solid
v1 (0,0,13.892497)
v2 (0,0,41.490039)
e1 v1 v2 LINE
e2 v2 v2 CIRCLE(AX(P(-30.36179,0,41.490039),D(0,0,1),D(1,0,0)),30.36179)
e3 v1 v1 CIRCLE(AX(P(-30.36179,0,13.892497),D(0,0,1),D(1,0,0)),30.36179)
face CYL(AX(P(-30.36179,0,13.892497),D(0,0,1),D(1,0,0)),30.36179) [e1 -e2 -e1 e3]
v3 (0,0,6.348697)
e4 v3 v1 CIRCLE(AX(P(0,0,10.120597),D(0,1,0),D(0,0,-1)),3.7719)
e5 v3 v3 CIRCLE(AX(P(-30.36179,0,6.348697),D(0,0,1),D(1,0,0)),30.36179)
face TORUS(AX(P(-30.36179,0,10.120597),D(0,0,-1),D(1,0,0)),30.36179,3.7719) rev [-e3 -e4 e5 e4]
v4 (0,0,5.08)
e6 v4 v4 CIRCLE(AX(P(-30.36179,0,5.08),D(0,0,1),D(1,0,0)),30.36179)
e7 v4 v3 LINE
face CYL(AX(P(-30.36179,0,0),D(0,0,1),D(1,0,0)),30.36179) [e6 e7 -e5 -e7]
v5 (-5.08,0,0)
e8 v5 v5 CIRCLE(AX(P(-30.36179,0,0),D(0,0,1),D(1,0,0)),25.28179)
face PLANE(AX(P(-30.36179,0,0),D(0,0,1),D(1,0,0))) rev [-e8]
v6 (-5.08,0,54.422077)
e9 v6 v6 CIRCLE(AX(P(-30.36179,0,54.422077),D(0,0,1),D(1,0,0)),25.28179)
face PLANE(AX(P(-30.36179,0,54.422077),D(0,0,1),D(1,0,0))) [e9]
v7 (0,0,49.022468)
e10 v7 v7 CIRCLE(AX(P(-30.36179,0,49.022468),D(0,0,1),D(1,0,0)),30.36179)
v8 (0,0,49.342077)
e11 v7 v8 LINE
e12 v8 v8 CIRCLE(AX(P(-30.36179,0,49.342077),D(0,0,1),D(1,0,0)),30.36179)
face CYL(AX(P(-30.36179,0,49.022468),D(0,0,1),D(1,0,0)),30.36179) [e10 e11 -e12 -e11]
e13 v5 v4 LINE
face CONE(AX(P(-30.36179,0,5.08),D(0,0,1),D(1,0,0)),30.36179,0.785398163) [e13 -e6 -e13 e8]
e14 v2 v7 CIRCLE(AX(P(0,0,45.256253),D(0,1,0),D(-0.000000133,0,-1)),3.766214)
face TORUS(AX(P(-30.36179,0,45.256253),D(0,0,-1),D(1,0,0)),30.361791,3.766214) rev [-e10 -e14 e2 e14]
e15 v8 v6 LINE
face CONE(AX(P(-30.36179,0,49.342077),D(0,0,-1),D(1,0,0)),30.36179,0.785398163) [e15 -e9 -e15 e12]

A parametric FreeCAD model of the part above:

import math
import FreeCAD as App
import Part
import Sketcher
from FreeCAD import Vector
Q = App.Units.Quantity


def edges_at(feature, points):
    """Names of the edges that pass closest to the given points."""
    edges = feature.Shape.Edges
    near = lambda p: min(range(len(edges)), key=lambda i: edges[i].distToShape(Part.Vertex(*p))[0])
    return sorted({f"Edge{near(p) + 1}" for p in points})

doc = App.newDocument("Part")
body = doc.addObject("PartDesign::Body", "Body")

# Sketch on XZ plane
sketch1 = doc.addObject("Sketcher::SketchObject", "Sketch")
body.addObject(sketch1)
sketch1.AttachmentSupport = (doc.XZ_Plane, [""])
sketch1.MapMode = "FlatFace"
sketch1.addGeometry([
    Part.LineSegment(Vector(-30.4, 0, 0), Vector(0, 0, 0)),  # 0
    Part.LineSegment(Vector(0, 0, 0), Vector(0, 6.3, 0)),  # 1
    Part.ArcOfCircle(Part.Circle(Vector(0, 10.1, 0), Vector(0, 0, 1), 3.8), math.radians(90), math.radians(270)),  # 2
    Part.LineSegment(Vector(0, 13.9, 0), Vector(0, 41.5, 0)),  # 3
    Part.ArcOfCircle(Part.Circle(Vector(0, 45.3, 0), Vector(0, 0, 1), 3.8), math.radians(90), math.radians(270)),  # 4
    Part.LineSegment(Vector(0, 49, 0), Vector(0, 54.4, 0)),  # 5
    Part.LineSegment(Vector(0, 54.4, 0), Vector(-30.4, 54.4, 0)),  # 6
    Part.LineSegment(Vector(-30.4, 54.4, 0), Vector(-30.4, 0, 0)),  # 7
], False)
sketch1.addGeometry(Part.LineSegment(Vector(-30.4, 0, 0), Vector(-30.4, 54.4, 0)), True)  # axis
sketch1.addConstraint([
    Sketcher.Constraint("Coincident", 0, 2, 1, 1),
    Sketcher.Constraint("Coincident", 1, 2, 2, 2),
    Sketcher.Constraint("Coincident", 2, 1, 3, 1),
    Sketcher.Constraint("Coincident", 3, 2, 4, 2),
    Sketcher.Constraint("Coincident", 4, 1, 5, 1),
    Sketcher.Constraint("Coincident", 5, 2, 6, 1),
    Sketcher.Constraint("Coincident", 6, 2, 7, 1),
    Sketcher.Constraint("Coincident", 7, 2, 0, 1),
    Sketcher.Constraint("Horizontal", 0),
    Sketcher.Constraint("Vertical", 1),
    Sketcher.Constraint("Vertical", 3),
    Sketcher.Constraint("Vertical", 5),
    Sketcher.Constraint("Horizontal", 6),
    Sketcher.Constraint("Vertical", 7),
    Sketcher.Constraint("Vertical", 8),
    Sketcher.Constraint("Coincident", 0, 2, -1, 1),
    Sketcher.Constraint("Coincident", 8, 1, 7, 2),
    Sketcher.Constraint("PointOnObject", 2, 3, -2),
    Sketcher.Constraint("PointOnObject", 4, 3, -2),
    Sketcher.Constraint("PointOnObject", 2, 1, -2),
    Sketcher.Constraint("PointOnObject", 4, 1, -2),
    Sketcher.Constraint("Horizontal", 5, 2, 8, 2),
    Sketcher.Constraint("Radius", 2, Q("0.1485 in")),
    Sketcher.Constraint("Radius", 4, 3.766214),
    Sketcher.Constraint("DistanceX", 0, 1, 0, 2, 30.36179),
    Sketcher.Constraint("DistanceY", 5, 1, 5, 2, 5.399609),
    Sketcher.Constraint("DistanceY", 1, 1, 1, 2, 6.348697),
    Sketcher.Constraint("DistanceY", 3, 1, 3, 2, 27.597542),
])
revolution = doc.addObject("PartDesign::Revolution", "Revolution")
body.addObject(revolution)
revolution.Profile = sketch1
revolution.ReferenceAxis = (sketch1, ["Axis0"])
revolution.Angle = 360
doc.recompute()

chamfer = doc.addObject("PartDesign::Chamfer", "Chamfer")
body.addObject(chamfer)
chamfer.Base = (revolution, edges_at(revolution, [(-60.724, 0, 54.422), (-60.724, 0, 0)]))
chamfer.Size = Q("0.2 in")

doc.recompute()
